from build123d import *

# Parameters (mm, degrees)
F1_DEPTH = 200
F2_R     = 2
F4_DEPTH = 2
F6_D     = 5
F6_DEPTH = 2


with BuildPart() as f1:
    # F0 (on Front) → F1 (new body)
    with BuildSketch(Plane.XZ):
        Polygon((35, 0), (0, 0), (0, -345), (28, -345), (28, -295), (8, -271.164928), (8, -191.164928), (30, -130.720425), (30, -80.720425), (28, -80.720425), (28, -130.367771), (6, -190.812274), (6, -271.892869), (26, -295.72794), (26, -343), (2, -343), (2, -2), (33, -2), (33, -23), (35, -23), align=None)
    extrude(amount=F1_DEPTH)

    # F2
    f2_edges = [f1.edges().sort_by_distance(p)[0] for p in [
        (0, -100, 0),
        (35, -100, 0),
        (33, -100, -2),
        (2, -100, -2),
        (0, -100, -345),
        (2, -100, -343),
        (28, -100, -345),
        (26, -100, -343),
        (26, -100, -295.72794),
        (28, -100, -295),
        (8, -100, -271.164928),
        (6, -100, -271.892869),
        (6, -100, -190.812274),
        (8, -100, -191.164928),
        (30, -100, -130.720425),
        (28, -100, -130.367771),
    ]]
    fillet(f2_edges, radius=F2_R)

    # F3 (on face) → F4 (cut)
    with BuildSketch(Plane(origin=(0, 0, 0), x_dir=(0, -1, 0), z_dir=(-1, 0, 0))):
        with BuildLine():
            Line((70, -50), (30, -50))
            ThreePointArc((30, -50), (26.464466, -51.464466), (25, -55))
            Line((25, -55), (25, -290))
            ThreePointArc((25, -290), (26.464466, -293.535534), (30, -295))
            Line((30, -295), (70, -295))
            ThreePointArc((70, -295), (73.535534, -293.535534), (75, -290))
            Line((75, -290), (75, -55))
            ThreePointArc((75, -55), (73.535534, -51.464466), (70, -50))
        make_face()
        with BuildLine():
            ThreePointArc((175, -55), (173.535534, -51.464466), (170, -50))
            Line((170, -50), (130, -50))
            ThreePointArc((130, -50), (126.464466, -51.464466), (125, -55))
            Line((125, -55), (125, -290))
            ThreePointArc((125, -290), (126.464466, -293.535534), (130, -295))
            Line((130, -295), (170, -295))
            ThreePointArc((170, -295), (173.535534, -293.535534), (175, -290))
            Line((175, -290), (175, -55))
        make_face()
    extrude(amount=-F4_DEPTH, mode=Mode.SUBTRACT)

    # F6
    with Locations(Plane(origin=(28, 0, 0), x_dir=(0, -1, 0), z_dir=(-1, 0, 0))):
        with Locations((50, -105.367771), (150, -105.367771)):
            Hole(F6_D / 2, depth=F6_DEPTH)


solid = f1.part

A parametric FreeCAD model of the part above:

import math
import FreeCAD as App
import Part
import Sketcher

V = App.Vector
Q = App.Units.Quantity


def edges_at(feature, points):
    """Names of the edges that pass closest to the given points."""
    edges = feature.Shape.Edges
    near = lambda p: min(range(len(edges)), key=lambda i: edges[i].distToShape(Part.Vertex(*p))[0])
    return sorted({f"Edge{near(p) + 1}" for p in points})

doc = App.newDocument("Part")
body = doc.addObject("PartDesign::Body", "Body")

sketch1 = doc.addObject("Sketcher::SketchObject", "Sketch")
body.addObject(sketch1)
sketch1.AttachmentSupport = (doc.XZ_Plane, [""])
sketch1.MapMode = "FlatFace"
sketch1.addGeometry([
    Part.LineSegment(V(35, 0, 0), V(0, 0, 0)),
    Part.LineSegment(V(0, 0, 0), V(0, -345, 0)),
    Part.LineSegment(V(0, -345, 0), V(28, -345, 0)),
    Part.LineSegment(V(28, -345, 0), V(28, -295, 0)),
    Part.LineSegment(V(28, -295, 0), V(8, -271.164928, 0)),
    Part.LineSegment(V(8, -271.164928, 0), V(8, -191.164928, 0)),
    Part.LineSegment(V(8, -191.164928, 0), V(30, -130.720425, 0)),
    Part.LineSegment(V(30, -130.720425, 0), V(30, -80.720425, 0)),
    Part.LineSegment(V(30, -80.720425, 0), V(28, -80.720425, 0)),
    Part.LineSegment(V(28, -80.720425, 0), V(28, -130.367771, 0)),
    Part.LineSegment(V(28, -130.367771, 0), V(6, -190.812274, 0)),
    Part.LineSegment(V(6, -190.812274, 0), V(6, -271.892869, 0)),
    Part.LineSegment(V(6, -271.892869, 0), V(26, -295.72794, 0)),
    Part.LineSegment(V(26, -295.72794, 0), V(26, -343, 0)),
    Part.LineSegment(V(26, -343, 0), V(2, -343, 0)),
    Part.LineSegment(V(2, -343, 0), V(2, -2, 0)),
    Part.LineSegment(V(2, -2, 0), V(33, -2, 0)),
    Part.LineSegment(V(33, -2, 0), V(33, -23, 0)),
    Part.LineSegment(V(33, -23, 0), V(35, -23, 0)),
    Part.LineSegment(V(35, -23, 0), V(35, 0, 0)),
], False)
sketch1.addConstraint([
    Sketcher.Constraint("Coincident", 0, 2, 1, 1),
    Sketcher.Constraint("Coincident", 1, 2, 2, 1),
    Sketcher.Constraint("Coincident", 2, 2, 3, 1),
    Sketcher.Constraint("Coincident", 3, 2, 4, 1),
    Sketcher.Constraint("Coincident", 4, 2, 5, 1),
    Sketcher.Constraint("Coincident", 5, 2, 6, 1),
    Sketcher.Constraint("Coincident", 6, 2, 7, 1),
    Sketcher.Constraint("Coincident", 7, 2, 8, 1),
    Sketcher.Constraint("Coincident", 8, 2, 9, 1),
    Sketcher.Constraint("Coincident", 9, 2, 10, 1),
    Sketcher.Constraint("Coincident", 10, 2, 11, 1),
    Sketcher.Constraint("Coincident", 11, 2, 12, 1),
    Sketcher.Constraint("Coincident", 12, 2, 13, 1),
    Sketcher.Constraint("Coincident", 13, 2, 14, 1),
    Sketcher.Constraint("Coincident", 14, 2, 15, 1),
    Sketcher.Constraint("Coincident", 15, 2, 16, 1),
    Sketcher.Constraint("Coincident", 16, 2, 17, 1),
    Sketcher.Constraint("Coincident", 17, 2, 18, 1),
    Sketcher.Constraint("Coincident", 18, 2, 19, 1),
    Sketcher.Constraint("Coincident", 19, 2, 0, 1),
    Sketcher.Constraint("Horizontal", 0),
    Sketcher.Constraint("Vertical", 1),
    Sketcher.Constraint("Horizontal", 2),
    Sketcher.Constraint("Vertical", 3),
    Sketcher.Constraint("Vertical", 5),
    Sketcher.Constraint("Vertical", 7),
    Sketcher.Constraint("Horizontal", 8),
    Sketcher.Constraint("Vertical", 9),
    Sketcher.Constraint("Vertical", 11),
    Sketcher.Constraint("Vertical", 13),
    Sketcher.Constraint("Horizontal", 14),
    Sketcher.Constraint("Vertical", 15),
    Sketcher.Constraint("Horizontal", 16),
    Sketcher.Constraint("Vertical", 17),
    Sketcher.Constraint("Horizontal", 18),
    Sketcher.Constraint("Vertical", 19),
    Sketcher.Constraint("Coincident", 0, 2, -1, 1),
    Sketcher.Constraint("Parallel", 6, 10),
    Sketcher.Constraint("Parallel", 4, 12),
    Sketcher.Constraint("Vertical", 3, 2, 8, 2),
    Sketcher.Constraint("Equal", 8, 18),
    Sketcher.Constraint("Equal", 3, 7),
    Sketcher.Constraint("Equal", 6, 10),
    Sketcher.Constraint("Equal", 4, 12),
    Sketcher.Constraint("DistanceX", 0, 2, 0, 1, Q("35 mm")),
    Sketcher.Constraint("DistanceX", 2, 1, 2, 2, Q("28 mm")),
    Sketcher.Constraint("DistanceX", 8, 2, 8, 1, Q("2 mm")),
    Sketcher.Constraint("DistanceX", 14, 2, 14, 1, Q("24 mm")),
    Sketcher.Constraint("DistanceY", 1, 2, 1, 1, Q("345 mm")),
    Sketcher.Constraint("DistanceY", 3, 1, 3, 2, Q("50 mm")),
    Sketcher.Constraint("DistanceY", 5, 1, 5, 2, Q("80 mm")),
    Sketcher.Constraint("DistanceY", 15, 1, 15, 2, Q("341 mm")),
    Sketcher.Constraint("DistanceY", 17, 2, 17, 1, Q("21 mm")),
    Sketcher.Constraint("DistanceY", 19, 1, 19, 2, Q("23 mm")),
    Sketcher.Constraint("Angle", 4, Q("130 deg")),
    Sketcher.Constraint("Angle", 6, Q("70 deg")),
    Sketcher.Constraint("DistanceX", -1, 1, 4, 2, Q("8 mm")),
    Sketcher.Constraint("DistanceY", 13, 2, 13, 1, Q("47.27206 mm")),
    Sketcher.Constraint("DistanceY", 9, 2, 9, 1, Q("49.647346 mm")),
])
pad1 = doc.addObject("PartDesign::Pad", "Pad")
body.addObject(pad1)
pad1.Profile = sketch1
pad1.Length = 200
doc.recompute()

fillet = doc.addObject("PartDesign::Fillet", "Fillet")
body.addObject(fillet)
fillet.Base = (pad1, edges_at(pad1, [
    (0, -100, 0),
    (35, -100, 0),
    (33, -100, -2),
    (2, -100, -2),
    (0, -100, -345),
    (2, -100, -343),
    (28, -100, -345),
    (26, -100, -343),
    (26, -100, -295.728),
    (28, -100, -295),
    (8, -100, -271.165),
    (6, -100, -271.893),
    (6, -100, -190.812),
    (8, -100, -191.165),
    (30, -100, -130.72),
    (28, -100, -130.368),
]))
fillet.Radius = 2

sketch2 = doc.addObject("Sketcher::SketchObject", "Sketch001")
body.addObject(sketch2)
sketch2.AttachmentSupport = (doc.YZ_Plane, [""])
sketch2.MapMode = "FlatFace"
sketch2.addGeometry([
    Part.LineSegment(V(-70, -50, 0), V(-30, -50, 0)),
    Part.ArcOfCircle(Part.Circle(V(-30, -55, 0), V(0, 0, 1), 5), math.radians(-0.000004), math.radians(90.000004)),
    Part.LineSegment(V(-25, -55, 0), V(-25, -290, 0)),
    Part.ArcOfCircle(Part.Circle(V(-30, -290, 0), V(0, 0, 1), 5), math.radians(-90.000004), math.radians(0.000004)),
    Part.LineSegment(V(-30, -295, 0), V(-70, -295, 0)),
    Part.ArcOfCircle(Part.Circle(V(-70, -290, 0), V(0, 0, 1), 5), math.radians(179.999996), math.radians(270.000004)),
    Part.LineSegment(V(-75, -290, 0), V(-75, -55, 0)),
    Part.ArcOfCircle(Part.Circle(V(-70, -55, 0), V(0, 0, 1), 5), math.radians(89.999996), math.radians(180.000004)),
    Part.ArcOfCircle(Part.Circle(V(-170, -55, 0), V(0, 0, 1), 5), math.radians(89.999996), math.radians(180.000004)),
    Part.LineSegment(V(-170, -50, 0), V(-130, -50, 0)),
    Part.ArcOfCircle(Part.Circle(V(-130, -55, 0), V(0, 0, 1), 5), math.radians(-0.000004), math.radians(90.000004)),
    Part.LineSegment(V(-125, -55, 0), V(-125, -290, 0)),
    Part.ArcOfCircle(Part.Circle(V(-130, -290, 0), V(0, 0, 1), 5), math.radians(-90.000004), math.radians(0.000004)),
    Part.LineSegment(V(-130, -295, 0), V(-170, -295, 0)),
    Part.ArcOfCircle(Part.Circle(V(-170, -290, 0), V(0, 0, 1), 5), math.radians(179.999996), math.radians(270.000004)),
    Part.LineSegment(V(-175, -290, 0), V(-175, -55, 0)),
], False)
sketch2.addConstraint([
    Sketcher.Constraint("Tangent", 0, 2, 1, 2),
    Sketcher.Constraint("Tangent", 1, 1, 2, 1),
    Sketcher.Constraint("Tangent", 2, 2, 3, 2),
    Sketcher.Constraint("Tangent", 3, 1, 4, 1),
    Sketcher.Constraint("Tangent", 4, 2, 5, 2),
    Sketcher.Constraint("Tangent", 5, 1, 6, 1),
    Sketcher.Constraint("Tangent", 6, 2, 7, 2),
    Sketcher.Constraint("Tangent", 7, 1, 0, 1),
    Sketcher.Constraint("Tangent", 8, 1, 9, 1),
    Sketcher.Constraint("Tangent", 9, 2, 10, 2),
    Sketcher.Constraint("Tangent", 10, 1, 11, 1),
    Sketcher.Constraint("Tangent", 11, 2, 12, 2),
    Sketcher.Constraint("Tangent", 12, 1, 13, 1),
    Sketcher.Constraint("Tangent", 13, 2, 14, 2),
    Sketcher.Constraint("Tangent", 14, 1, 15, 1),
    Sketcher.Constraint("Tangent", 15, 2, 8, 2),
    Sketcher.Constraint("Horizontal", 0),
    Sketcher.Constraint("Vertical", 2),
    Sketcher.Constraint("Horizontal", 4),
    Sketcher.Constraint("Vertical", 6),
    Sketcher.Constraint("Horizontal", 9),
    Sketcher.Constraint("Vertical", 11),
    Sketcher.Constraint("Horizontal", 13),
    Sketcher.Constraint("Vertical", 15),
    Sketcher.Constraint("Equal", 1, 3),
    Sketcher.Constraint("Equal", 3, 5),
    Sketcher.Constraint("Equal", 5, 7),
    Sketcher.Constraint("Equal", 7, 8),
    Sketcher.Constraint("Equal", 8, 10),
    Sketcher.Constraint("Equal", 10, 12),
    Sketcher.Constraint("Equal", 12, 14),
    Sketcher.Constraint("Horizontal", 7, 3, 8, 3),
    Sketcher.Constraint("Horizontal", 5, 3, 12, 3),
    Sketcher.Constraint("Equal", 4, 9),
    Sketcher.Constraint("Radius", 1, Q("5 mm")),
    Sketcher.Constraint("DistanceX", 0, 1, 0, 2, Q("40 mm")),
    Sketcher.Constraint("DistanceY", 2, 2, 2, 1, Q("235 mm")),
    Sketcher.Constraint("DistanceX", 1, 3, -1, 1, Q("30 mm")),
    Sketcher.Constraint("DistanceY", 1, 3, -1, 1, Q("55 mm")),
    Sketcher.Constraint("DistanceX", 8, 3, -1, 1, Q("170 mm")),
])
pocket1 = doc.addObject("PartDesign::Pocket", "Pocket")
body.addObject(pocket1)
pocket1.Profile = sketch2
pocket1.Length = 2
pocket1.Reversed = True

sketch3 = doc.addObject("Sketcher::SketchObject", "Sketch002")
body.addObject(sketch3)
sketch3.AttachmentSupport = (doc.YZ_Plane, [""])
sketch3.MapMode = "FlatFace"
sketch3.AttachmentOffset = App.Placement(V(0, 0, 28), App.Rotation())
sketch3.addGeometry([
    Part.Circle(V(-50, -105.367771, 0), V(0, 0, 1), 2.5),
    Part.Circle(V(-150, -105.367771, 0), V(0, 0, 1), 2.5),
], False)
sketch3.addConstraint([
    Sketcher.Constraint("Equal", 0, 1),
    Sketcher.Constraint("Horizontal", 0, 3, 1, 3),
    Sketcher.Constraint("Diameter", 0, Q("5 mm")),
    Sketcher.Constraint("DistanceX", 0, 3, -1, 1, Q("50 mm")),
    Sketcher.Constraint("DistanceX", 1, 3, -1, 1, Q("150 mm")),
    Sketcher.Constraint("DistanceY", 0, 3, -1, 1, Q("105.367771 mm")),
])
doc.recompute()
hole = doc.addObject("PartDesign::Hole", "Hole")
body.addObject(hole)
hole.Profile = sketch3
hole.ThreadType = "None"
hole.Diameter = 5
hole.DepthType = "Dimension"
hole.Depth = 2
hole.DrillPoint = "Flat"
hole.Reversed = True

doc.recompute()
